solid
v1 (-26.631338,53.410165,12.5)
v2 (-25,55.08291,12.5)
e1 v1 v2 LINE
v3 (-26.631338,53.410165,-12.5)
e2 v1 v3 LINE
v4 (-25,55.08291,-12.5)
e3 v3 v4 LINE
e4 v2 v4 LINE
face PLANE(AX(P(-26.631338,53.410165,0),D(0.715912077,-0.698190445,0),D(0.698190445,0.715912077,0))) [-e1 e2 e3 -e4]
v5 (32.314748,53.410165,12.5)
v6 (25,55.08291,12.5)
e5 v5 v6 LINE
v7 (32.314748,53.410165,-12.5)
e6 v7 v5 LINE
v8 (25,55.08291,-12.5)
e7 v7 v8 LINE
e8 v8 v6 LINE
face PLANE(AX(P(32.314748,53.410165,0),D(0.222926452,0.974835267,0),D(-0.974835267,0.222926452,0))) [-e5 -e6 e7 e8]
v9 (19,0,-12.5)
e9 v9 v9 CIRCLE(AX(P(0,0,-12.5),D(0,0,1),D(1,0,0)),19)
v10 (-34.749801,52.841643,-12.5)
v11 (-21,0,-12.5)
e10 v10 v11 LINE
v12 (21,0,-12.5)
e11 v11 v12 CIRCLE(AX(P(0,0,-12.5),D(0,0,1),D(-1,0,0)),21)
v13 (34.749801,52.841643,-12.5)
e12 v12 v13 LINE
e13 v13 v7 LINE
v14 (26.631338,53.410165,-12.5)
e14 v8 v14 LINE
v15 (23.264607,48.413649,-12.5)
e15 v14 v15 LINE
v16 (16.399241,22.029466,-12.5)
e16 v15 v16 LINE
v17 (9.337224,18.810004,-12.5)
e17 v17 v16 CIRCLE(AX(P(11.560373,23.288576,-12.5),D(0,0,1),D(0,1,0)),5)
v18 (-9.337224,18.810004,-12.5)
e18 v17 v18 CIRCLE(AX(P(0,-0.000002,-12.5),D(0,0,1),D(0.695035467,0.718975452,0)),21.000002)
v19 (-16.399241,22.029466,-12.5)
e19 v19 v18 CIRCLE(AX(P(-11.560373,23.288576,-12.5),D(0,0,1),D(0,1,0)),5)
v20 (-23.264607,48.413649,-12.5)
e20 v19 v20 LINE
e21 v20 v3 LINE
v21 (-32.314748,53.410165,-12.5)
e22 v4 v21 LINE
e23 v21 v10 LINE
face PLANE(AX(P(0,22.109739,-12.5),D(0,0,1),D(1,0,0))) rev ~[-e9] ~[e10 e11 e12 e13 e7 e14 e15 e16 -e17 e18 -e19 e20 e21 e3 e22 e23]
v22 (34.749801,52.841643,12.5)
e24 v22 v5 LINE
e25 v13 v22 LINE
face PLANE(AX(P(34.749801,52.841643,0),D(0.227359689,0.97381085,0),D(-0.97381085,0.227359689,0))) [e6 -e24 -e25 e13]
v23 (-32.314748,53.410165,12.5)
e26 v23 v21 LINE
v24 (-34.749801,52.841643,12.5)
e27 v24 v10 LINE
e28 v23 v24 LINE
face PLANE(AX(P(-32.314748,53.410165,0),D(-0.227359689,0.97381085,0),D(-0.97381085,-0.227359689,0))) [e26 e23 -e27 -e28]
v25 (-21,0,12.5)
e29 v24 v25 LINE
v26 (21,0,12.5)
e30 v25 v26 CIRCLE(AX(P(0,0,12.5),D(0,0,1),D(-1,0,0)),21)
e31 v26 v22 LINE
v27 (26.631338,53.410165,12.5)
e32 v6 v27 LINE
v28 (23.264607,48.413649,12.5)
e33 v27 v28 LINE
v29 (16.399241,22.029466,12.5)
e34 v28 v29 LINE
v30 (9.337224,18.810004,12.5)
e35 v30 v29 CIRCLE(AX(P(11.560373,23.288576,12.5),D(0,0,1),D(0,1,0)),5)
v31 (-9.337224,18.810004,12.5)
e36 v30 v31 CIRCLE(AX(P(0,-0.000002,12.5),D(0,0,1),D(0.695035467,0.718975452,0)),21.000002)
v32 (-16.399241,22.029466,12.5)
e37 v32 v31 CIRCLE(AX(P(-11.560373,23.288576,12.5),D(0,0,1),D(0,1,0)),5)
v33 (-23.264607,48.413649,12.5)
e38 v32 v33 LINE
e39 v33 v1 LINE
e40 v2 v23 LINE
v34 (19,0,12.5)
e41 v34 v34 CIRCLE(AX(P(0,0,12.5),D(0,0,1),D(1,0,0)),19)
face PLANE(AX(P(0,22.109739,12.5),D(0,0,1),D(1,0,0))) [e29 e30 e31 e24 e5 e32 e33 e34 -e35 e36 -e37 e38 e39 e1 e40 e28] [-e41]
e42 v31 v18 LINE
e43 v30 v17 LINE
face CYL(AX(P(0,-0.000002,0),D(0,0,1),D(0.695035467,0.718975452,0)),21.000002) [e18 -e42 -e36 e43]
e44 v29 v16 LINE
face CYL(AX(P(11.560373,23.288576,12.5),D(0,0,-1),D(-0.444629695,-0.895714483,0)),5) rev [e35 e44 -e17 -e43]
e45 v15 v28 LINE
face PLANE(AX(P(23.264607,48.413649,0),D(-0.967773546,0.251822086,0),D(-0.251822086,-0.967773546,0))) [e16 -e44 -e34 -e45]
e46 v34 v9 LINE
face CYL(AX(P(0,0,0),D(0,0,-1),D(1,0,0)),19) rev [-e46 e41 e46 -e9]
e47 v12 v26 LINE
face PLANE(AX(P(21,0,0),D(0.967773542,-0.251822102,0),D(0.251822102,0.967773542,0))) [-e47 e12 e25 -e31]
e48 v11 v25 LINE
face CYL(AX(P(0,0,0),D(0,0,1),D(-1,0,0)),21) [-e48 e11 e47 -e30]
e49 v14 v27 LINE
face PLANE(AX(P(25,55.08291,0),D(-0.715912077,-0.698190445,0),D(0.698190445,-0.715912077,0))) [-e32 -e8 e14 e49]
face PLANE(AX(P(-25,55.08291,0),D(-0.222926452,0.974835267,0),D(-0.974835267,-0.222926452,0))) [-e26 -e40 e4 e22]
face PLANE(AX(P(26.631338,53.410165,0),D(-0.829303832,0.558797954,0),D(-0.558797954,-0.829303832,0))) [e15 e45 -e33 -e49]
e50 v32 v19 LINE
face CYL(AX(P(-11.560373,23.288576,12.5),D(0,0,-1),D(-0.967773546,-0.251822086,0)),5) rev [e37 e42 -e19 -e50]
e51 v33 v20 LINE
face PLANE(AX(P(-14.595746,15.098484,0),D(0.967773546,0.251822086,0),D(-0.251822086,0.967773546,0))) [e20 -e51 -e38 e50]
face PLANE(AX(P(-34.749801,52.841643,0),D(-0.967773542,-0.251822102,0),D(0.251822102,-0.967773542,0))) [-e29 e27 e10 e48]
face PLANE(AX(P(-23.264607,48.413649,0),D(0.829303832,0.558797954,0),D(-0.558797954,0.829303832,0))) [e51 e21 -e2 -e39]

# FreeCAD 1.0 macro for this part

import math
import FreeCAD as App
import Part
import Sketcher
from FreeCAD import Vector


def edges_at(feature, points):
    """Names of the edges that pass closest to the given points."""
    edges = feature.Shape.Edges
    near = lambda p: min(range(len(edges)), key=lambda i: edges[i].distToShape(Part.Vertex(*p))[0])
    return sorted({f"Edge{near(p) + 1}" for p in points})

doc = App.newDocument("Part")
body = doc.addObject("PartDesign::Body", "Body")

# Sketch on XY plane
sketch1 = doc.addObject("Sketcher::SketchObject", "Sketch")
body.addObject(sketch1)
sketch1.AttachmentSupport = (doc.XY_Plane, [""])
sketch1.MapMode = "FlatFace"
sketch1.addGeometry(Part.LineSegment(Vector(-34.7, 52.8, 0), Vector(-21, 0, 0)), False)
sketch1.addGeometry(Part.ArcOfCircle(Part.Circle(Vector(0, 0, 0), Vector(0, 0, 1), 21), math.radians(180), math.radians(360)), False)
sketch1.addGeometry(Part.LineSegment(Vector(21, 0, 0), Vector(34.7, 52.8, 0)), False)
sketch1.addGeometry(Part.LineSegment(Vector(34.7, 52.8, 0), Vector(32.3, 53.4, 0)), False)
sketch1.addGeometry(Part.LineSegment(Vector(32.3, 53.4, 0), Vector(25, 55.1, 0)), False)
sketch1.addGeometry(Part.LineSegment(Vector(25, 55.1, 0), Vector(26.6, 53.4, 0)), False)
sketch1.addGeometry(Part.LineSegment(Vector(26.6, 53.4, 0), Vector(23.3, 48.4, 0)), False)
sketch1.addGeometry(Part.LineSegment(Vector(23.3, 48.4, 0), Vector(14.6, 15.1, 0)), False)
sketch1.addGeometry(Part.ArcOfCircle(Part.Circle(Vector(0, 0, 0), Vector(0, 0, 1), 21), math.radians(46), math.radians(134)), False)
sketch1.addGeometry(Part.LineSegment(Vector(-14.6, 15.1, 0), Vector(-23.3, 48.4, 0)), False)
sketch1.addGeometry(Part.LineSegment(Vector(-23.3, 48.4, 0), Vector(-26.6, 53.4, 0)), False)
sketch1.addGeometry(Part.LineSegment(Vector(-26.6, 53.4, 0), Vector(-25, 55.1, 0)), False)
sketch1.addGeometry(Part.LineSegment(Vector(-25, 55.1, 0), Vector(-32.3, 53.4, 0)), False)
sketch1.addGeometry(Part.LineSegment(Vector(-32.3, 53.4, 0), Vector(-34.7, 52.8, 0)), False)
sketch1.addGeometry(Part.Circle(Vector(0, 0, 0), Vector(0, 0, 1), 19), False)
sketch1.addConstraint(Sketcher.Constraint("Coincident", 0, 2, 1, 1))
sketch1.addConstraint(Sketcher.Constraint("Coincident", 1, 2, 2, 1))
sketch1.addConstraint(Sketcher.Constraint("Coincident", 2, 2, 3, 1))
sketch1.addConstraint(Sketcher.Constraint("Coincident", 3, 2, 4, 1))
sketch1.addConstraint(Sketcher.Constraint("Coincident", 4, 2, 5, 1))
sketch1.addConstraint(Sketcher.Constraint("Coincident", 5, 2, 6, 1))
sketch1.addConstraint(Sketcher.Constraint("Coincident", 6, 2, 7, 1))
sketch1.addConstraint(Sketcher.Constraint("Coincident", 7, 2, 8, 1))
sketch1.addConstraint(Sketcher.Constraint("Coincident", 8, 2, 9, 1))
sketch1.addConstraint(Sketcher.Constraint("Coincident", 9, 2, 10, 1))
sketch1.addConstraint(Sketcher.Constraint("Coincident", 10, 2, 11, 1))
sketch1.addConstraint(Sketcher.Constraint("Coincident", 11, 2, 12, 1))
sketch1.addConstraint(Sketcher.Constraint("Coincident", 12, 2, 13, 1))
sketch1.addConstraint(Sketcher.Constraint("Coincident", 13, 2, 0, 1))
sketch1.addConstraint(Sketcher.Constraint("Coincident", 1, 3, -1, 1))
sketch1.addConstraint(Sketcher.Constraint("Coincident", 8, 3, -1, 1))
sketch1.addConstraint(Sketcher.Constraint("Coincident", 14, 3, -1, 1))
sketch1.addConstraint(Sketcher.Constraint("Equal", 1, 8))
sketch1.addConstraint(Sketcher.Constraint("Symmetric", 6, 2, 9, 2, -2))
sketch1.addConstraint(Sketcher.Constraint("Symmetric", 5, 2, 10, 2, -2))
sketch1.addConstraint(Sketcher.Constraint("Symmetric", 4, 2, 11, 2, -2))
sketch1.addConstraint(Sketcher.Constraint("Symmetric", 3, 2, 12, 2, -2))
sketch1.addConstraint(Sketcher.Constraint("Symmetric", 2, 2, 13, 2, -2))
sketch1.addConstraint(Sketcher.Constraint("PointOnObject", 0, 2, -1))
sketch1.addConstraint(Sketcher.Constraint("PointOnObject", 1, 2, -1))
sketch1.addConstraint(Sketcher.Constraint("Parallel", 2, 7))
sketch1.addConstraint(Sketcher.Constraint("Parallel", 0, 9))
sketch1.addConstraint(Sketcher.Constraint("Horizontal", 3, 2, 5, 2))
sketch1.addConstraint(Sketcher.Constraint("Diameter", 14, 38.0))
sketch1.addConstraint(Sketcher.Constraint("Radius", 1, 21.0))
sketch1.addConstraint(Sketcher.Constraint("DistanceX", -1, 1, 4, 2, 25.0))
sketch1.addConstraint(Sketcher.Constraint("DistanceX", 12, 2, 8, 2, 17.719002))
sketch1.addConstraint(Sketcher.Constraint("DistanceX", -1, 1, 2, 2, 34.749801))
sketch1.addConstraint(Sketcher.Constraint("Distance", 3, 2.50054))
sketch1.addConstraint(Sketcher.Constraint("DistanceX", -1, 1, 3, 2, 32.314748))
sketch1.addConstraint(Sketcher.Constraint("DistanceY", -1, 1, 4, 2, 55.08291))
sketch1.addConstraint(Sketcher.Constraint("DistanceY", -1, 1, 6, 2, 48.413649))
sketch1.addConstraint(Sketcher.Constraint("DistanceX", 5, 2, 3, 2, 5.68341))
sketch1.addConstraint(Sketcher.Constraint("DistanceX", 6, 2, 5, 2, 3.366731))
pad1 = doc.addObject("PartDesign::Pad", "Pad")
body.addObject(pad1)
pad1.Profile = sketch1
pad1.Length = 25
pad1.Midplane = True
doc.recompute()

fillet = doc.addObject("PartDesign::Fillet", "Fillet")
body.addObject(fillet)
fillet.Base = (pad1, edges_at(pad1, [(-14.596, 15.098, 0), (14.596, 15.098, 0)]))
fillet.Radius = 5

doc.recompute()
